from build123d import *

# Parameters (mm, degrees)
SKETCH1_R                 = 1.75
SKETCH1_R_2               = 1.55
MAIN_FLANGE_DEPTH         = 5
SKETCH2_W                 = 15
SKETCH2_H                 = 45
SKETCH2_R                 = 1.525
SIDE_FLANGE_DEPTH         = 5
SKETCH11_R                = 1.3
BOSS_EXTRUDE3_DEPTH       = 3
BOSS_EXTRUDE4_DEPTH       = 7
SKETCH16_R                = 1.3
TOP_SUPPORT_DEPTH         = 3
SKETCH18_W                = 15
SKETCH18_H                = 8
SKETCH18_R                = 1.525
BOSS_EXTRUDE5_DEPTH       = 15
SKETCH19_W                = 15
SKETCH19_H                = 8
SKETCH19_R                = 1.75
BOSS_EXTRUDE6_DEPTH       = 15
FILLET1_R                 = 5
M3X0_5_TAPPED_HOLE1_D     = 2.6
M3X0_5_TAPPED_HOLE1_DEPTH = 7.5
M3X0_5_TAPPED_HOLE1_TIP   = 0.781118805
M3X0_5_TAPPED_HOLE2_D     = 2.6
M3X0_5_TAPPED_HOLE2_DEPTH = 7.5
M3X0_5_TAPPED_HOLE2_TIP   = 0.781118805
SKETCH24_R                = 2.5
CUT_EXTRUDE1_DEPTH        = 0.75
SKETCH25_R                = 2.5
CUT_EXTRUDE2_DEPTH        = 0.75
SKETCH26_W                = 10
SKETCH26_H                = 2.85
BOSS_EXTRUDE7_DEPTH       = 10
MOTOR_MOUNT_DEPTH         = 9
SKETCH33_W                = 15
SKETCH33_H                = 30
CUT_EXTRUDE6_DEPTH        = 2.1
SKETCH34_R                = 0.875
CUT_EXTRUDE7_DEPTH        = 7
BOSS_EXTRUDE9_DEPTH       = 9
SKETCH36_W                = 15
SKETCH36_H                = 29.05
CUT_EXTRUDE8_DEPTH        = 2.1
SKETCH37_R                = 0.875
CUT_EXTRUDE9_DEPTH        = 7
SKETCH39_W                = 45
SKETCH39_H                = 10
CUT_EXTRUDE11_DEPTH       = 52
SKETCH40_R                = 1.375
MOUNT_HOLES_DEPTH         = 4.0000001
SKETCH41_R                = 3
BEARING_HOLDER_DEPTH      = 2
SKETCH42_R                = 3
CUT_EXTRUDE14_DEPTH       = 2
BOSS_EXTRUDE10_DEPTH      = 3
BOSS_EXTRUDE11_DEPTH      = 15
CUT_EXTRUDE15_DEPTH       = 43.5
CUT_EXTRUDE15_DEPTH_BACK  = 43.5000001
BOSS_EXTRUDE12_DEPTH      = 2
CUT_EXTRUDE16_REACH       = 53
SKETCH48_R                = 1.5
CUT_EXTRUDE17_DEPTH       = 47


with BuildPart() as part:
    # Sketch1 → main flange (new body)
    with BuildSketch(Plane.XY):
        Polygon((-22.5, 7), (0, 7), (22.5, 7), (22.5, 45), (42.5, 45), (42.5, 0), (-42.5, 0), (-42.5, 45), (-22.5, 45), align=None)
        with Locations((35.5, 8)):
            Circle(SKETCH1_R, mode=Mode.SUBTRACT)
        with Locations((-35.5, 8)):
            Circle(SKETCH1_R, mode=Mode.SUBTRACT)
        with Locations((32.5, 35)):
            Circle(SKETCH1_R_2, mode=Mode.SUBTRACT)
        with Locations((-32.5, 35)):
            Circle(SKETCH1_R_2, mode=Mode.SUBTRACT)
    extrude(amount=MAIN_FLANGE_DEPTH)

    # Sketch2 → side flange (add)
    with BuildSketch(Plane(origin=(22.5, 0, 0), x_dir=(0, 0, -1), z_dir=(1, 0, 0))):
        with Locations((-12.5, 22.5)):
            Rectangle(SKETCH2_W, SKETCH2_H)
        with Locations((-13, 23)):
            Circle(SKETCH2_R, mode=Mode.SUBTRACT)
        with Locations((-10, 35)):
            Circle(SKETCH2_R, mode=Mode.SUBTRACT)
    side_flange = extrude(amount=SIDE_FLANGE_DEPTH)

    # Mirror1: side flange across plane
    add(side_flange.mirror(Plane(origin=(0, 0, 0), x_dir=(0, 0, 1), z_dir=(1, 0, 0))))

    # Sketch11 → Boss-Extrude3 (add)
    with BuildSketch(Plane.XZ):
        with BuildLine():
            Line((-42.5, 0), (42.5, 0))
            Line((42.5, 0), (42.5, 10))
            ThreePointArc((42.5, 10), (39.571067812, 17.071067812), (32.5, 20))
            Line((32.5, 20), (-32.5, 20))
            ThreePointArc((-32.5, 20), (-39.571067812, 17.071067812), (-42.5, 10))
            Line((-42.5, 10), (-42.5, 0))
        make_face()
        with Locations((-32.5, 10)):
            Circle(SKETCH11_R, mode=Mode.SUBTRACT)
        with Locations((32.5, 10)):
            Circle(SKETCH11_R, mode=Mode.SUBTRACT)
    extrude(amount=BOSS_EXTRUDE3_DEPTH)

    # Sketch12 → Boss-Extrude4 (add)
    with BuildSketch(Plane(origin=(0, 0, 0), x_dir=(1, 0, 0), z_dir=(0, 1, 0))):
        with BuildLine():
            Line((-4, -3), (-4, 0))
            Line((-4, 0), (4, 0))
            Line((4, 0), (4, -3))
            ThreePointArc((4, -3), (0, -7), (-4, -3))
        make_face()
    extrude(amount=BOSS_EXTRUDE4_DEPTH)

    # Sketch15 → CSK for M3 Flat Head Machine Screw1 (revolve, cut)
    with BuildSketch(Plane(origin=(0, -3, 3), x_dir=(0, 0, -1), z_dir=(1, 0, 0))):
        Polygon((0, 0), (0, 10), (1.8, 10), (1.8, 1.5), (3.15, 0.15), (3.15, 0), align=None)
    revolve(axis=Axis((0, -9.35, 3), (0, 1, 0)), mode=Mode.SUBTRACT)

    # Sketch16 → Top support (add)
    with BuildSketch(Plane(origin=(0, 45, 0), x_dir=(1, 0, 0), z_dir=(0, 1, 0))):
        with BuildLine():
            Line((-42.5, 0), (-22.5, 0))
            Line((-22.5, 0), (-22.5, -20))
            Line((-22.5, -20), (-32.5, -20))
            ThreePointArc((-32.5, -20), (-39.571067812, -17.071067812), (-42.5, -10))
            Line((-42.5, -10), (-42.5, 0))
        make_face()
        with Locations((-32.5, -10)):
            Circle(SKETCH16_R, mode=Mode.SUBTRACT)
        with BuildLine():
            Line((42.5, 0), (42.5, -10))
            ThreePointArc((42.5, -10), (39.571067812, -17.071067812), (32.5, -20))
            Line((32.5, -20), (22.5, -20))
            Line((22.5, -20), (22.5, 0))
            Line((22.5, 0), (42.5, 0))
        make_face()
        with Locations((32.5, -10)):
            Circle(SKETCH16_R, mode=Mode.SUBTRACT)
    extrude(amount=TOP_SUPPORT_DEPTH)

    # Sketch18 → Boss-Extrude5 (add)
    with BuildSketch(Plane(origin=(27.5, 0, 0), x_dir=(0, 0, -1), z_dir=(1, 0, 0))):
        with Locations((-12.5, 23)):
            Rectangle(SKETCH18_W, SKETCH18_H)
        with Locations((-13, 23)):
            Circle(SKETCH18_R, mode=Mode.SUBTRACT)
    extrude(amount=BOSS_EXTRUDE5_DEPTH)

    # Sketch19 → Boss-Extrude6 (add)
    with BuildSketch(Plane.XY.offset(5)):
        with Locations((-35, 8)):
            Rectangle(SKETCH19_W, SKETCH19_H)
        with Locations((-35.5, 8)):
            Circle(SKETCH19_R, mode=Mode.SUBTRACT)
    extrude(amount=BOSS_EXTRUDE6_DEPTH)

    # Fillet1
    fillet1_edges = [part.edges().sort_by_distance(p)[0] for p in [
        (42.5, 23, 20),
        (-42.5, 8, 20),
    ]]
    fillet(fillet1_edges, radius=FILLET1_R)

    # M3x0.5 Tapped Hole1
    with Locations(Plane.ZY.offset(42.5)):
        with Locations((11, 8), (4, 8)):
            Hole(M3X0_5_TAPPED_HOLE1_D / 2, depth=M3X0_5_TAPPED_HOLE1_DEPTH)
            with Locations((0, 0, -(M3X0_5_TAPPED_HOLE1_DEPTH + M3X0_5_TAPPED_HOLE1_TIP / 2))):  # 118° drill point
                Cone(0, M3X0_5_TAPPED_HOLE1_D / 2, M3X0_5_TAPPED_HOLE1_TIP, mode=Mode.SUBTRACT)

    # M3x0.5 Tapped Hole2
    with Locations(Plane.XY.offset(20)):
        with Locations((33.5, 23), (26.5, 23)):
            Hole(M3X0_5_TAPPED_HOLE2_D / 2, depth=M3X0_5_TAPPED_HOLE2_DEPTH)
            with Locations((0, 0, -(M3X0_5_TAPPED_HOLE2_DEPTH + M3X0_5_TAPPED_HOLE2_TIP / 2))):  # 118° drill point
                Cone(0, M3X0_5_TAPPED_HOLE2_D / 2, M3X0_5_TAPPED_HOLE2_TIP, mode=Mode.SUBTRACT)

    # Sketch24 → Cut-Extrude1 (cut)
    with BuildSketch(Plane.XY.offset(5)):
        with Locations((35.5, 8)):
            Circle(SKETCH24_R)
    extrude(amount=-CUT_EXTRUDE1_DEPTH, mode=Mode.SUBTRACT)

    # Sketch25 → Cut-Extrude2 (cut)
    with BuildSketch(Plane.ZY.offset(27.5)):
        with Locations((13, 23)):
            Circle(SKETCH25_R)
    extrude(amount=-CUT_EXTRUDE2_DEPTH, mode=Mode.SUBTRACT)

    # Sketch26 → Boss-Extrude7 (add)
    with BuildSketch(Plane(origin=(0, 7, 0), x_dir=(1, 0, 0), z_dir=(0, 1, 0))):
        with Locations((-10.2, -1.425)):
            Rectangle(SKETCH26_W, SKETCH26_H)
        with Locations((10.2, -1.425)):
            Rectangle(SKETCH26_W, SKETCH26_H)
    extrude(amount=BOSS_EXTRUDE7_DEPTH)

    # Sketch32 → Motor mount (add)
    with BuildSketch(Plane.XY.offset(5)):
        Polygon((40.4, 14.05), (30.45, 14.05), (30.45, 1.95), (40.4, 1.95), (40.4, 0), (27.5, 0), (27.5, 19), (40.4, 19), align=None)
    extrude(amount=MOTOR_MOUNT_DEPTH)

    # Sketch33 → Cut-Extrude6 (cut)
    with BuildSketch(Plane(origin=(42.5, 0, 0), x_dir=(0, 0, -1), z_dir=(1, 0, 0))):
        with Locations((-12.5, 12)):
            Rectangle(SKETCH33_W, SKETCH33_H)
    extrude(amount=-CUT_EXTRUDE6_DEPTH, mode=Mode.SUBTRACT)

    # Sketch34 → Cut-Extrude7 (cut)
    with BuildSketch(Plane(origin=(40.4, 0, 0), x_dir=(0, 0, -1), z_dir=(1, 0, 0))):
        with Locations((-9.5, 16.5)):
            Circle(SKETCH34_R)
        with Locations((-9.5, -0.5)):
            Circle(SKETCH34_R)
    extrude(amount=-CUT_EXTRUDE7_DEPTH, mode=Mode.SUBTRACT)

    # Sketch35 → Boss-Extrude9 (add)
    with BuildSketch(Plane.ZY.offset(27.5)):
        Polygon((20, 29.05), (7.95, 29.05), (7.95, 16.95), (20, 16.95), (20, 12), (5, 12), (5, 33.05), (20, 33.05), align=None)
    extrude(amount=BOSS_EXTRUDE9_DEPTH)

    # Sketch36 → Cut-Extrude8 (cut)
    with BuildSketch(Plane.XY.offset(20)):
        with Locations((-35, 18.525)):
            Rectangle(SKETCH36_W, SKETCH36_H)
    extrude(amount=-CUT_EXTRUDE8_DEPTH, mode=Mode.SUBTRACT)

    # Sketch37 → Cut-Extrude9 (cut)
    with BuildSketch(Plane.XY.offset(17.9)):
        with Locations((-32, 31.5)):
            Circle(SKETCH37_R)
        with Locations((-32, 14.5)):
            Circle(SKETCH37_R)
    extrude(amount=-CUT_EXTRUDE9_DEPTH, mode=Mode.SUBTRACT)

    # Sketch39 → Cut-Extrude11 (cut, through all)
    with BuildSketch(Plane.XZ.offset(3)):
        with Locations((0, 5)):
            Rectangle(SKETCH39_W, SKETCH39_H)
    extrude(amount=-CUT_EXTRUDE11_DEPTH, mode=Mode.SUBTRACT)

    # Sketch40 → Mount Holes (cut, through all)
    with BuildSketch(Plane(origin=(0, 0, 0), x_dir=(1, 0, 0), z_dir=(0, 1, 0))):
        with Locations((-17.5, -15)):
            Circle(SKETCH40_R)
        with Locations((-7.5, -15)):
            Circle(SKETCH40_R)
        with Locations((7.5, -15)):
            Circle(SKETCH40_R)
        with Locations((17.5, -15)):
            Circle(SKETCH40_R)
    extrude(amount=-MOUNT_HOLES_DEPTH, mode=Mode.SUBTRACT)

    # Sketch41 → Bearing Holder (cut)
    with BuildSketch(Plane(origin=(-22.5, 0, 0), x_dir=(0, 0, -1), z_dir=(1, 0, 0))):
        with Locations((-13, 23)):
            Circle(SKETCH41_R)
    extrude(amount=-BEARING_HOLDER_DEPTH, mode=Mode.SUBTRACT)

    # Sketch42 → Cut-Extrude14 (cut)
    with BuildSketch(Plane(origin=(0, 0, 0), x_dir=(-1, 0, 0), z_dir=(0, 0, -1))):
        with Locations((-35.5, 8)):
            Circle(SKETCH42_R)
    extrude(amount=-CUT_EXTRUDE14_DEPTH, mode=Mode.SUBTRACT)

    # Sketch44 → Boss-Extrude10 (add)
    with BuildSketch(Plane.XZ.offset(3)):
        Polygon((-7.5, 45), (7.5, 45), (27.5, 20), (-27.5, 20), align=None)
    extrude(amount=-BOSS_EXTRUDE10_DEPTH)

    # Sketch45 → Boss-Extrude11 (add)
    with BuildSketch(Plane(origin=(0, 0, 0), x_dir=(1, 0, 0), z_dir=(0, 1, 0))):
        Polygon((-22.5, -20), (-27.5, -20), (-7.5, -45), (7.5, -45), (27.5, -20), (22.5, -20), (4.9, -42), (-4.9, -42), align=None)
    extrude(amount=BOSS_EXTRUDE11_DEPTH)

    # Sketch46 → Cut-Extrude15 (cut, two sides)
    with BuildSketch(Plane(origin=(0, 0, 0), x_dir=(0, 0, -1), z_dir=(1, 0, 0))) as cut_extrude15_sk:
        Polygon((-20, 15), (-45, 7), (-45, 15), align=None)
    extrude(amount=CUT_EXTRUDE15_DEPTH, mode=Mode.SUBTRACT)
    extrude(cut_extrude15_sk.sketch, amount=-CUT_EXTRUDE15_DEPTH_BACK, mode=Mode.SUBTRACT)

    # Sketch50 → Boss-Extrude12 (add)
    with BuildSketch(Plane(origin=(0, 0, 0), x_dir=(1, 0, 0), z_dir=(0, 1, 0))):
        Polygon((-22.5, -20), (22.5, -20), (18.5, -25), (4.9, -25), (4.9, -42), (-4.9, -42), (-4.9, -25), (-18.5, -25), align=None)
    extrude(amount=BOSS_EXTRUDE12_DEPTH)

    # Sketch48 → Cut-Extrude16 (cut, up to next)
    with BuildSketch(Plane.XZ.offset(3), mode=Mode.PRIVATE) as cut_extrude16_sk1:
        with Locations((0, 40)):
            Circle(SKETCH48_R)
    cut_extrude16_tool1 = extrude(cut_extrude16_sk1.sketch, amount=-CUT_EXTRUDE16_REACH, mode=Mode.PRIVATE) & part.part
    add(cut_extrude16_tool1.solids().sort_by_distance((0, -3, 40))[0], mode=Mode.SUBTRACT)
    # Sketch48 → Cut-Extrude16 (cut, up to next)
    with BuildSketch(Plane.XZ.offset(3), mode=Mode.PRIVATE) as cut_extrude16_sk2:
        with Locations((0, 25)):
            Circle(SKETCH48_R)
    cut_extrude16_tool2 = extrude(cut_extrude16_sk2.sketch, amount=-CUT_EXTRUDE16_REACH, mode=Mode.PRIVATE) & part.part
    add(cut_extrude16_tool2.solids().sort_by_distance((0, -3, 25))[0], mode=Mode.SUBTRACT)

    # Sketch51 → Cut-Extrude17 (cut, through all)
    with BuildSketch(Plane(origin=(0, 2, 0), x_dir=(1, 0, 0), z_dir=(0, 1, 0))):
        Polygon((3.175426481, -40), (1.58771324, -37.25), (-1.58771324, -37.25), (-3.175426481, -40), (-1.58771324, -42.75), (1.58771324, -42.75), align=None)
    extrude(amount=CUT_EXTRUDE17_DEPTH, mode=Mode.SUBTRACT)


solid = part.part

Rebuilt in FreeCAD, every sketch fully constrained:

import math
import FreeCAD as App
import Part
import Sketcher

V = App.Vector
Q = App.Units.Quantity


def edges_at(feature, points):
    """Names of the edges that pass closest to the given points."""
    edges = feature.Shape.Edges
    near = lambda p: min(range(len(edges)), key=lambda i: edges[i].distToShape(Part.Vertex(*p))[0])
    return sorted({f"Edge{near(p) + 1}" for p in points})


def add_polygon(sketch, points):
    """Adds a closed chain of lines whose ends are joined by coincident constraints."""
    first, n = sketch.GeometryCount, len(points)
    for a, b in zip(points, points[1:] + points[:1]):
        sketch.addGeometry(Part.LineSegment(App.Vector(*a, 0), App.Vector(*b, 0)), False)
    for i in range(n):
        sketch.addConstraint(Sketcher.Constraint("Coincident", first + i, 2, first + (i + 1) % n, 1))

doc = App.newDocument("Part")
body = doc.addObject("PartDesign::Body", "Body")

sketch1 = body.newObject("Sketcher::SketchObject", "Sketch")
sketch1.AttachmentSupport = (doc.getObject("XY_Plane"), [""])
sketch1.MapMode = "FlatFace"
add_polygon(sketch1, [(22.5, 7), (-22.5, 7), (-22.5, 45), (-42.5, 45), (-42.5, 0), (42.5, 0), (42.5, 45), (22.5, 45)])
sketch1.addGeometry(Part.Circle(V(35.5, 8, 0), V(0, 0, 1), 1.75), False)
sketch1.addGeometry(Part.Circle(V(-35.5, 8, 0), V(0, 0, 1), 1.75), False)
sketch1.addGeometry(Part.Circle(V(32.5, 35, 0), V(0, 0, 1), 1.55), False)
sketch1.addGeometry(Part.Circle(V(-32.5, 35, 0), V(0, 0, 1), 1.55), False)
sketch1.addConstraint(Sketcher.Constraint("Horizontal", 0))
sketch1.addConstraint(Sketcher.Constraint("Vertical", 1))
sketch1.addConstraint(Sketcher.Constraint("Horizontal", 2))
sketch1.addConstraint(Sketcher.Constraint("Vertical", 3))
sketch1.addConstraint(Sketcher.Constraint("Horizontal", 4))
sketch1.addConstraint(Sketcher.Constraint("Vertical", 5))
sketch1.addConstraint(Sketcher.Constraint("Horizontal", 6))
sketch1.addConstraint(Sketcher.Constraint("Vertical", 7))
sketch1.addConstraint(Sketcher.Constraint("Equal", 8, 9))
sketch1.addConstraint(Sketcher.Constraint("Equal", 10, 11))
sketch1.addConstraint(Sketcher.Constraint("Symmetric", 3, 2, 4, 2, -1, 1))
sketch1.addConstraint(Sketcher.Constraint("Symmetric", 8, 3, 9, 3, -2))
sketch1.addConstraint(Sketcher.Constraint("Symmetric", 10, 3, 11, 3, -2))
sketch1.addConstraint(Sketcher.Constraint("Symmetric", 1, 2, 6, 2, -2))
sketch1.addConstraint(Sketcher.Constraint("Equal", 0, 3))
sketch1.addConstraint(Sketcher.Constraint("Diameter", 8, Q("3.5 mm")))
sketch1.addConstraint(Sketcher.Constraint("Diameter", 10, Q("3.1 mm")))
sketch1.addConstraint(Sketcher.Constraint("DistanceX", 0, 2, 0, 1, Q("45 mm")))
sketch1.addConstraint(Sketcher.Constraint("DistanceX", 2, 2, 2, 1, Q("20 mm")))
sketch1.addConstraint(Sketcher.Constraint("DistanceY", 1, 1, 1, 2, Q("38 mm")))
sketch1.addConstraint(Sketcher.Constraint("DistanceY", -1, 1, 8, 3, Q("8 mm")))
sketch1.addConstraint(Sketcher.Constraint("DistanceY", -1, 1, 10, 3, Q("35 mm")))
sketch1.addConstraint(Sketcher.Constraint("DistanceX", 9, 3, 8, 3, Q("71 mm")))
sketch1.addConstraint(Sketcher.Constraint("DistanceX", 10, 3, 8, 3, Q("3 mm")))
pad1 = body.newObject("PartDesign::Pad", "Pad")
pad1.Profile = sketch1
pad1.Length = 5

sketch2 = body.newObject("Sketcher::SketchObject", "Sketch001")
sketch2.AttachmentSupport = (doc.getObject("YZ_Plane"), [""])
sketch2.MapMode = "FlatFace"
sketch2.AttachmentOffset = App.Placement(V(0, 0, 22.5), App.Rotation())
add_polygon(sketch2, [(45, 20), (0, 20), (0, 5), (45, 5)])
sketch2.addGeometry(Part.Circle(V(23, 13, 0), V(0, 0, 1), 1.525), False)
sketch2.addGeometry(Part.Circle(V(35, 10, 0), V(0, 0, 1), 1.525), False)
sketch2.addConstraint(Sketcher.Constraint("Horizontal", 0))
sketch2.addConstraint(Sketcher.Constraint("Vertical", 1))
sketch2.addConstraint(Sketcher.Constraint("Horizontal", 2))
sketch2.addConstraint(Sketcher.Constraint("Vertical", 3))
sketch2.addConstraint(Sketcher.Constraint("Equal", 4, 5))
sketch2.addConstraint(Sketcher.Constraint("PointOnObject", 0, 2, -2))
sketch2.addConstraint(Sketcher.Constraint("Diameter", 4, Q("3.05 mm")))
sketch2.addConstraint(Sketcher.Constraint("DistanceX", 0, 2, 0, 1, Q("45 mm")))
sketch2.addConstraint(Sketcher.Constraint("DistanceY", 1, 2, 1, 1, Q("15 mm")))
sketch2.addConstraint(Sketcher.Constraint("DistanceX", -1, 1, 4, 3, Q("23 mm")))
sketch2.addConstraint(Sketcher.Constraint("DistanceY", -1, 1, 4, 3, Q("13 mm")))
sketch2.addConstraint(Sketcher.Constraint("DistanceX", -1, 1, 5, 3, Q("35 mm")))
sketch2.addConstraint(Sketcher.Constraint("DistanceY", -1, 1, 5, 3, Q("10 mm")))
sketch2.addConstraint(Sketcher.Constraint("DistanceY", -1, 1, 0, 2, Q("20 mm")))
pad2 = body.newObject("PartDesign::Pad", "Pad001")
pad2.Profile = sketch2
pad2.Length = 5
doc.recompute()

mirrored = body.newObject("PartDesign::Mirrored", "Mirrored")
mirrored.Originals = [pad2]
mirrored.MirrorPlane = (doc.getObject("YZ_Plane"), [""])
body.Tip = mirrored

sketch3 = body.newObject("Sketcher::SketchObject", "Sketch002")
sketch3.AttachmentSupport = (doc.getObject("XZ_Plane"), [""])
sketch3.MapMode = "FlatFace"
sketch3.addGeometry(Part.LineSegment(V(-42.5, 0, 0), V(42.5, 0, 0)), False)
sketch3.addGeometry(Part.LineSegment(V(42.5, 0, 0), V(42.5, 10, 0)), False)
sketch3.addGeometry(Part.ArcOfCircle(Part.Circle(V(32.5, 10, 0), V(0, 0, 1), 10), math.radians(0), math.radians(90)), False)
sketch3.addGeometry(Part.LineSegment(V(32.5, 20, 0), V(-32.5, 20, 0)), False)
sketch3.addGeometry(Part.ArcOfCircle(Part.Circle(V(-32.5, 10, 0), V(0, 0, 1), 10), math.radians(90), math.radians(180)), False)
sketch3.addGeometry(Part.LineSegment(V(-42.5, 10, 0), V(-42.5, 0, 0)), False)
sketch3.addGeometry(Part.Circle(V(-32.5, 10, 0), V(0, 0, 1), 1.3), False)
sketch3.addGeometry(Part.Circle(V(32.5, 10, 0), V(0, 0, 1), 1.3), False)
sketch3.addConstraint(Sketcher.Constraint("Coincident", 0, 2, 1, 1))
sketch3.addConstraint(Sketcher.Constraint("Tangent", 1, 2, 2, 1))
sketch3.addConstraint(Sketcher.Constraint("Tangent", 2, 2, 3, 1))
sketch3.addConstraint(Sketcher.Constraint("Tangent", 3, 2, 4, 1))
sketch3.addConstraint(Sketcher.Constraint("Tangent", 4, 2, 5, 1))
sketch3.addConstraint(Sketcher.Constraint("Coincident", 5, 2, 0, 1))
sketch3.addConstraint(Sketcher.Constraint("Horizontal", 0))
sketch3.addConstraint(Sketcher.Constraint("Vertical", 1))
sketch3.addConstraint(Sketcher.Constraint("Horizontal", 3))
sketch3.addConstraint(Sketcher.Constraint("Vertical", 5))
sketch3.addConstraint(Sketcher.Constraint("Coincident", 6, 3, 4, 3))
sketch3.addConstraint(Sketcher.Constraint("Coincident", 7, 3, 2, 3))
sketch3.addConstraint(Sketcher.Constraint("Equal", 2, 4))
sketch3.addConstraint(Sketcher.Constraint("Equal", 6, 7))
sketch3.addConstraint(Sketcher.Constraint("Symmetric", 0, 2, 5, 2, -1, 1))
sketch3.addConstraint(Sketcher.Constraint("Radius", 2, Q("10 mm")))
sketch3.addConstraint(Sketcher.Constraint("Diameter", 6, Q("2.6 mm")))
sketch3.addConstraint(Sketcher.Constraint("DistanceX", 0, 1, 0, 2, Q("85 mm")))
sketch3.addConstraint(Sketcher.Constraint("DistanceY", 1, 1, 1, 2, Q("10 mm")))
pad3 = body.newObject("PartDesign::Pad", "Pad002")
pad3.Profile = sketch3
pad3.Length = 3

sketch4 = body.newObject("Sketcher::SketchObject", "Sketch003")
sketch4.AttachmentSupport = (doc.getObject("XZ_Plane"), [""])
sketch4.MapMode = "FlatFace"
sketch4.addGeometry(Part.LineSegment(V(-4, 0, 0), V(-4, 3, 0)), False)
sketch4.addGeometry(Part.ArcOfCircle(Part.Circle(V(0, 3, 0), V(0, 0, 1), 4), math.radians(0), math.radians(180)), False)
sketch4.addGeometry(Part.LineSegment(V(4, 3, 0), V(4, 0, 0)), False)
sketch4.addGeometry(Part.LineSegment(V(4, 0, 0), V(-4, 0, 0)), False)
sketch4.addConstraint(Sketcher.Constraint("Tangent", 0, 2, 1, 2))
sketch4.addConstraint(Sketcher.Constraint("Tangent", 1, 1, 2, 1))
sketch4.addConstraint(Sketcher.Constraint("Coincident", 2, 2, 3, 1))
sketch4.addConstraint(Sketcher.Constraint("Coincident", 3, 2, 0, 1))
sketch4.addConstraint(Sketcher.Constraint("Vertical", 0))
sketch4.addConstraint(Sketcher.Constraint("Vertical", 2))
sketch4.addConstraint(Sketcher.Constraint("Horizontal", 3))
sketch4.addConstraint(Sketcher.Constraint("Symmetric", 2, 2, 3, 2, -1, 1))
sketch4.addConstraint(Sketcher.Constraint("Radius", 1, Q("4 mm")))
sketch4.addConstraint(Sketcher.Constraint("DistanceY", 0, 1, 0, 2, Q("3 mm")))
pad4 = body.newObject("PartDesign::Pad", "Pad003")
pad4.Profile = sketch4
pad4.Length = 7
pad4.Reversed = True

sketch5 = body.newObject("Sketcher::SketchObject", "Sketch004")
sketch5.AttachmentSupport = (doc.getObject("YZ_Plane"), [""])
sketch5.MapMode = "FlatFace"
add_polygon(sketch5, [(7, 3), (-3, 3), (-3, -0.15), (-2.85, -0.15), (-1.5, 1.2), (7, 1.2)])
sketch5.addGeometry(Part.LineSegment(V(-3, 3, 0), V(7, 3, 0)), True)
sketch5.addConstraint(Sketcher.Constraint("Horizontal", 0))
sketch5.addConstraint(Sketcher.Constraint("Vertical", 1))
sketch5.addConstraint(Sketcher.Constraint("Horizontal", 2))
sketch5.addConstraint(Sketcher.Constraint("Horizontal", 4))
sketch5.addConstraint(Sketcher.Constraint("Vertical", 5))
sketch5.addConstraint(Sketcher.Constraint("Horizontal", 6))
sketch5.addConstraint(Sketcher.Constraint("Coincident", 6, 1, 0, 2))
sketch5.addConstraint(Sketcher.Constraint("Vertical", 4, 2, 6, 2))
sketch5.addConstraint(Sketcher.Constraint("DistanceX", 0, 2, 0, 1, Q("10 mm")))
sketch5.addConstraint(Sketcher.Constraint("Angle", 3, Q("45 deg")))
sketch5.addConstraint(Sketcher.Constraint("DistanceX", 4, 1, 4, 2, Q("8.5 mm")))
sketch5.addConstraint(Sketcher.Constraint("DistanceY", 5, 1, 5, 2, Q("1.8 mm")))
sketch5.addConstraint(Sketcher.Constraint("DistanceX", 0, 2, -1, 1, Q("3 mm")))
sketch5.addConstraint(Sketcher.Constraint("DistanceY", -1, 1, 0, 2, Q("3 mm")))
sketch5.addConstraint(Sketcher.Constraint("DistanceX", 2, 1, 2, 2, Q("0.15 mm")))
groove = body.newObject("PartDesign::Groove", "Groove")
groove.Profile = sketch5
groove.ReferenceAxis = (sketch5, ["Axis0"])
groove.Angle = 360

sketch6 = body.newObject("Sketcher::SketchObject", "Sketch005")
sketch6.AttachmentSupport = (doc.getObject("XZ_Plane"), [""])
sketch6.MapMode = "FlatFace"
sketch6.AttachmentOffset = App.Placement(V(0, 0, -45), App.Rotation())
sketch6.addGeometry(Part.LineSegment(V(-22.5, 0, 0), V(-42.5, 0, 0)), False)
sketch6.addGeometry(Part.LineSegment(V(-42.5, 0, 0), V(-42.5, 10, 0)), False)
sketch6.addGeometry(Part.ArcOfCircle(Part.Circle(V(-32.5, 10, 0), V(0, 0, 1), 10), math.radians(90), math.radians(180)), False)
sketch6.addGeometry(Part.LineSegment(V(-32.5, 20, 0), V(-22.5, 20, 0)), False)
sketch6.addGeometry(Part.LineSegment(V(-22.5, 20, 0), V(-22.5, 0, 0)), False)
sketch6.addGeometry(Part.Circle(V(-32.5, 10, 0), V(0, 0, 1), 1.3), False)
sketch6.addGeometry(Part.LineSegment(V(42.5, 10, 0), V(42.5, 0, 0)), False)
sketch6.addGeometry(Part.LineSegment(V(42.5, 0, 0), V(22.5, 0, 0)), False)
sketch6.addGeometry(Part.LineSegment(V(22.5, 0, 0), V(22.5, 20, 0)), False)
sketch6.addGeometry(Part.LineSegment(V(22.5, 20, 0), V(32.5, 20, 0)), False)
sketch6.addGeometry(Part.ArcOfCircle(Part.Circle(V(32.5, 10, 0), V(0, 0, 1), 10), math.radians(0), math.radians(90)), False)
sketch6.addGeometry(Part.Circle(V(32.5, 10, 0), V(0, 0, 1), 1.3), False)
sketch6.addConstraint(Sketcher.Constraint("Coincident", 0, 2, 1, 1))
sketch6.addConstraint(Sketcher.Constraint("Tangent", 1, 2, 2, 2))
sketch6.addConstraint(Sketcher.Constraint("Tangent", 2, 1, 3, 1))
sketch6.addConstraint(Sketcher.Constraint("Coincident", 3, 2, 4, 1))
sketch6.addConstraint(Sketcher.Constraint("Coincident", 4, 2, 0, 1))
sketch6.addConstraint(Sketcher.Constraint("Coincident", 6, 2, 7, 1))
sketch6.addConstraint(Sketcher.Constraint("Coincident", 7, 2, 8, 1))
sketch6.addConstraint(Sketcher.Constraint("Coincident", 8, 2, 9, 1))
sketch6.addConstraint(Sketcher.Constraint("Tangent", 9, 2, 10, 2))
sketch6.addConstraint(Sketcher.Constraint("Tangent", 10, 1, 6, 1))
sketch6.addConstraint(Sketcher.Constraint("Horizontal", 0))
sketch6.addConstraint(Sketcher.Constraint("Vertical", 1))
sketch6.addConstraint(Sketcher.Constraint("Horizontal", 3))
sketch6.addConstraint(Sketcher.Constraint("Vertical", 4))
sketch6.addConstraint(Sketcher.Constraint("Vertical", 6))
sketch6.addConstraint(Sketcher.Constraint("Horizontal", 7))
sketch6.addConstraint(Sketcher.Constraint("Vertical", 8))
sketch6.addConstraint(Sketcher.Constraint("Horizontal", 9))
sketch6.addConstraint(Sketcher.Constraint("Coincident", 5, 3, 2, 3))
sketch6.addConstraint(Sketcher.Constraint("Coincident", 11, 3, 10, 3))
sketch6.addConstraint(Sketcher.Constraint("Equal", 2, 10))
sketch6.addConstraint(Sketcher.Constraint("Equal", 5, 11))
sketch6.addConstraint(Sketcher.Constraint("Symmetric", 0, 2, 6, 2, -1, 1))
sketch6.addConstraint(Sketcher.Constraint("Symmetric", 4, 2, 7, 2, -2))
sketch6.addConstraint(Sketcher.Constraint("Horizontal", 5, 3, 10, 3))
sketch6.addConstraint(Sketcher.Constraint("Equal", 9, 1))
sketch6.addConstraint(Sketcher.Constraint("Radius", 2, Q("10 mm")))
sketch6.addConstraint(Sketcher.Constraint("Diameter", 5, Q("2.6 mm")))
sketch6.addConstraint(Sketcher.Constraint("DistanceX", 0, 2, 0, 1, Q("20 mm")))
sketch6.addConstraint(Sketcher.Constraint("DistanceX", 2, 3, 10, 3, Q("65 mm")))
pad5 = body.newObject("PartDesign::Pad", "Pad004")
pad5.Profile = sketch6
pad5.Length = 3
pad5.Reversed = True

sketch7 = body.newObject("Sketcher::SketchObject", "Sketch006")
sketch7.AttachmentSupport = (doc.getObject("YZ_Plane"), [""])
sketch7.MapMode = "FlatFace"
sketch7.AttachmentOffset = App.Placement(V(0, 0, 27.5), App.Rotation())
add_polygon(sketch7, [(27, 20), (19, 20), (19, 5), (27, 5)])
sketch7.addGeometry(Part.Circle(V(23, 13, 0), V(0, 0, 1), 1.525), False)
sketch7.addConstraint(Sketcher.Constraint("Horizontal", 0))
sketch7.addConstraint(Sketcher.Constraint("Vertical", 1))
sketch7.addConstraint(Sketcher.Constraint("Horizontal", 2))
sketch7.addConstraint(Sketcher.Constraint("Vertical", 3))
sketch7.addConstraint(Sketcher.Constraint("Diameter", 4, Q("3.05 mm")))
sketch7.addConstraint(Sketcher.Constraint("DistanceX", 0, 2, 0, 1, Q("8 mm")))
sketch7.addConstraint(Sketcher.Constraint("DistanceY", 1, 2, 1, 1, Q("15 mm")))
sketch7.addConstraint(Sketcher.Constraint("DistanceX", -1, 1, 4, 3, Q("23 mm")))
sketch7.addConstraint(Sketcher.Constraint("DistanceY", -1, 1, 4, 3, Q("13 mm")))
sketch7.addConstraint(Sketcher.Constraint("DistanceX", -1, 1, 0, 2, Q("19 mm")))
sketch7.addConstraint(Sketcher.Constraint("DistanceY", -1, 1, 0, 2, Q("20 mm")))
pad6 = body.newObject("PartDesign::Pad", "Pad005")
pad6.Profile = sketch7
pad6.Length = 15

sketch8 = body.newObject("Sketcher::SketchObject", "Sketch007")
sketch8.AttachmentSupport = (doc.getObject("XY_Plane"), [""])
sketch8.MapMode = "FlatFace"
sketch8.AttachmentOffset = App.Placement(V(0, 0, 5), App.Rotation())
add_polygon(sketch8, [(-42.5, 12), (-42.5, 4), (-27.5, 4), (-27.5, 12)])
sketch8.addGeometry(Part.Circle(V(-35.5, 8, 0), V(0, 0, 1), 1.75), False)
sketch8.addConstraint(Sketcher.Constraint("Vertical", 0))
sketch8.addConstraint(Sketcher.Constraint("Horizontal", 1))
sketch8.addConstraint(Sketcher.Constraint("Vertical", 2))
sketch8.addConstraint(Sketcher.Constraint("Horizontal", 3))
sketch8.addConstraint(Sketcher.Constraint("Diameter", 4, Q("3.5 mm")))
sketch8.addConstraint(Sketcher.Constraint("DistanceX", 1, 1, 1, 2, Q("15 mm")))
sketch8.addConstraint(Sketcher.Constraint("DistanceY", 0, 2, 0, 1, Q("8 mm")))
sketch8.addConstraint(Sketcher.Constraint("DistanceY", -1, 1, 4, 3, Q("8 mm")))
sketch8.addConstraint(Sketcher.Constraint("DistanceY", -1, 1, 0, 2, Q("4 mm")))
sketch8.addConstraint(Sketcher.Constraint("DistanceX", 0, 2, 4, 3, Q("7 mm")))
sketch8.addConstraint(Sketcher.Constraint("DistanceX", 4, 3, -1, 1, Q("35.5 mm")))
pad7 = body.newObject("PartDesign::Pad", "Pad006")
pad7.Profile = sketch8
pad7.Length = 15
doc.recompute()

fillet = body.newObject("PartDesign::Fillet", "Fillet")
fillet.Base = (pad7, edges_at(pad7, [(42.5, 23, 20), (-42.5, 8, 20)]))
fillet.Radius = 5

sketch9 = body.newObject("Sketcher::SketchObject", "Sketch008")
sketch9.AttachmentSupport = (doc.getObject("YZ_Plane"), [""])
sketch9.MapMode = "FlatFace"
sketch9.AttachmentOffset = App.Placement(V(0, 0, -42.5), App.Rotation())
sketch9.addGeometry(Part.Circle(V(8, 11, 0), V(0, 0, 1), 1.3), False)
sketch9.addGeometry(Part.Circle(V(8, 4, 0), V(0, 0, 1), 1.3), False)
sketch9.addConstraint(Sketcher.Constraint("Equal", 0, 1))
sketch9.addConstraint(Sketcher.Constraint("Vertical", 0, 3, 1, 3))
sketch9.addConstraint(Sketcher.Constraint("Diameter", 0, Q("2.6 mm")))
sketch9.addConstraint(Sketcher.Constraint("DistanceX", -1, 1, 0, 3, Q("8 mm")))
sketch9.addConstraint(Sketcher.Constraint("DistanceY", -1, 1, 0, 3, Q("11 mm")))
sketch9.addConstraint(Sketcher.Constraint("DistanceY", -1, 1, 1, 3, Q("4 mm")))
doc.recompute()
hole = body.newObject("PartDesign::Hole", "Hole")
hole.Profile = sketch9
hole.ThreadType = "None"
hole.Diameter = 2.6
hole.DepthType = "Dimension"
hole.Depth = 7.5
hole.DrillPoint = "Angled"
hole.DrillPointAngle = 118
hole.Reversed = True

sketch10 = body.newObject("Sketcher::SketchObject", "Sketch009")
sketch10.AttachmentSupport = (doc.getObject("XY_Plane"), [""])
sketch10.MapMode = "FlatFace"
sketch10.AttachmentOffset = App.Placement(V(0, 0, 20), App.Rotation())
sketch10.addGeometry(Part.Circle(V(33.5, 23, 0), V(0, 0, 1), 1.3), False)
sketch10.addGeometry(Part.Circle(V(26.5, 23, 0), V(0, 0, 1), 1.3), False)
sketch10.addConstraint(Sketcher.Constraint("Equal", 0, 1))
sketch10.addConstraint(Sketcher.Constraint("Horizontal", 0, 3, 1, 3))
sketch10.addConstraint(Sketcher.Constraint("Diameter", 0, Q("2.6 mm")))
sketch10.addConstraint(Sketcher.Constraint("DistanceY", -1, 1, 0, 3, Q("23 mm")))
sketch10.addConstraint(Sketcher.Constraint("DistanceX", 1, 3, 0, 3, Q("7 mm")))
sketch10.addConstraint(Sketcher.Constraint("DistanceX", -1, 1, 0, 3, Q("33.5 mm")))
doc.recompute()
hole2 = body.newObject("PartDesign::Hole", "Hole001")
hole2.Profile = sketch10
hole2.ThreadType = "None"
hole2.Diameter = 2.6
hole2.DepthType = "Dimension"
hole2.Depth = 7.5
hole2.DrillPoint = "Angled"
hole2.DrillPointAngle = 118

sketch11 = body.newObject("Sketcher::SketchObject", "Sketch010")
sketch11.AttachmentSupport = (doc.getObject("XY_Plane"), [""])
sketch11.MapMode = "FlatFace"
sketch11.AttachmentOffset = App.Placement(V(0, 0, 5), App.Rotation())
sketch11.addGeometry(Part.Circle(V(35.5, 8, 0), V(0, 0, 1), 2.5), False)
sketch11.addConstraint(Sketcher.Constraint("Diameter", 0, Q("5 mm")))
sketch11.addConstraint(Sketcher.Constraint("DistanceY", -1, 1, 0, 3, Q("8 mm")))
sketch11.addConstraint(Sketcher.Constraint("DistanceX", -1, 1, 0, 3, Q("35.5 mm")))
pocket1 = body.newObject("PartDesign::Pocket", "Pocket")
pocket1.Profile = sketch11
pocket1.Length = 0.75

sketch12 = body.newObject("Sketcher::SketchObject", "Sketch011")
sketch12.AttachmentSupport = (doc.getObject("YZ_Plane"), [""])
sketch12.MapMode = "FlatFace"
sketch12.AttachmentOffset = App.Placement(V(0, 0, -27.5), App.Rotation())
sketch12.addGeometry(Part.Circle(V(23, 13, 0), V(0, 0, 1), 2.5), False)
sketch12.addConstraint(Sketcher.Constraint("Diameter", 0, Q("5 mm")))
sketch12.addConstraint(Sketcher.Constraint("DistanceX", -1, 1, 0, 3, Q("23 mm")))
sketch12.addConstraint(Sketcher.Constraint("DistanceY", -1, 1, 0, 3, Q("13 mm")))
pocket2 = body.newObject("PartDesign::Pocket", "Pocket001")
pocket2.Profile = sketch12
pocket2.Length = 0.75
pocket2.Reversed = True

sketch13 = body.newObject("Sketcher::SketchObject", "Sketch012")
sketch13.AttachmentSupport = (doc.getObject("XZ_Plane"), [""])
sketch13.MapMode = "FlatFace"
sketch13.AttachmentOffset = App.Placement(V(0, 0, -7), App.Rotation())
add_polygon(sketch13, [(-15.2, 0), (-15.2, 2.85), (-5.2, 2.85), (-5.2, 0)])
add_polygon(sketch13, [(5.2, 0), (5.2, 2.85), (15.2, 2.85), (15.2, 0)])
sketch13.addConstraint(Sketcher.Constraint("Vertical", 0))
sketch13.addConstraint(Sketcher.Constraint("Horizontal", 1))
sketch13.addConstraint(Sketcher.Constraint("Vertical", 2))
sketch13.addConstraint(Sketcher.Constraint("Horizontal", 3))
sketch13.addConstraint(Sketcher.Constraint("Vertical", 4))
sketch13.addConstraint(Sketcher.Constraint("Horizontal", 5))
sketch13.addConstraint(Sketcher.Constraint("Vertical", 6))
sketch13.addConstraint(Sketcher.Constraint("Horizontal", 7))
sketch13.addConstraint(Sketcher.Constraint("Symmetric", 3, 2, 6, 2, -1, 1))
sketch13.addConstraint(Sketcher.Constraint("Symmetric", 1, 2, 4, 2, -2))
sketch13.addConstraint(Sketcher.Constraint("PointOnObject", 2, 2, -1))
sketch13.addConstraint(Sketcher.Constraint("DistanceX", 1, 1, 1, 2, Q("10 mm")))
sketch13.addConstraint(Sketcher.Constraint("DistanceY", 0, 1, 0, 2, Q("2.85 mm")))
sketch13.addConstraint(Sketcher.Constraint("DistanceX", 0, 2, -1, 1, Q("15.2 mm")))
pad8 = body.newObject("PartDesign::Pad", "Pad007")
pad8.Profile = sketch13
pad8.Length = 10
pad8.Reversed = True

sketch14 = body.newObject("Sketcher::SketchObject", "Sketch013")
sketch14.AttachmentSupport = (doc.getObject("XY_Plane"), [""])
sketch14.MapMode = "FlatFace"
sketch14.AttachmentOffset = App.Placement(V(0, 0, 5), App.Rotation())
add_polygon(sketch14, [(30.45, 14.05), (40.4, 14.05), (40.4, 19), (27.5, 19), (27.5, 0), (40.4, 0), (40.4, 1.95), (30.45, 1.95)])
sketch14.addConstraint(Sketcher.Constraint("Horizontal", 0))
sketch14.addConstraint(Sketcher.Constraint("Vertical", 1))
sketch14.addConstraint(Sketcher.Constraint("Horizontal", 2))
sketch14.addConstraint(Sketcher.Constraint("Vertical", 3))
sketch14.addConstraint(Sketcher.Constraint("Horizontal", 4))
sketch14.addConstraint(Sketcher.Constraint("Vertical", 5))
sketch14.addConstraint(Sketcher.Constraint("Horizontal", 6))
sketch14.addConstraint(Sketcher.Constraint("Vertical", 7))
sketch14.addConstraint(Sketcher.Constraint("PointOnObject", 3, 2, -1))
sketch14.addConstraint(Sketcher.Constraint("Vertical", 1, 2, 4, 2))
sketch14.addConstraint(Sketcher.Constraint("DistanceY", 3, 2, 3, 1, Q("19 mm")))
sketch14.addConstraint(Sketcher.Constraint("DistanceX", 2, 2, 2, 1, Q("12.9 mm")))
sketch14.addConstraint(Sketcher.Constraint("DistanceY", 7, 1, 7, 2, Q("12.1 mm")))
sketch14.addConstraint(Sketcher.Constraint("DistanceX", 0, 1, 0, 2, Q("9.95 mm")))
sketch14.addConstraint(Sketcher.Constraint("DistanceY", 1, 1, 1, 2, Q("4.95 mm")))
sketch14.addConstraint(Sketcher.Constraint("DistanceX", -1, 1, 0, 2, Q("40.4 mm")))
pad9 = body.newObject("PartDesign::Pad", "Pad008")
pad9.Profile = sketch14
pad9.Length = 9

sketch15 = body.newObject("Sketcher::SketchObject", "Sketch014")
sketch15.AttachmentSupport = (doc.getObject("YZ_Plane"), [""])
sketch15.MapMode = "FlatFace"
sketch15.AttachmentOffset = App.Placement(V(0, 0, 42.5), App.Rotation())
add_polygon(sketch15, [(27, 20), (-3, 20), (-3, 5), (27, 5)])
sketch15.addConstraint(Sketcher.Constraint("Horizontal", 0))
sketch15.addConstraint(Sketcher.Constraint("Vertical", 1))
sketch15.addConstraint(Sketcher.Constraint("Horizontal", 2))
sketch15.addConstraint(Sketcher.Constraint("Vertical", 3))
sketch15.addConstraint(Sketcher.Constraint("DistanceX", 0, 2, 0, 1, Q("30 mm")))
sketch15.addConstraint(Sketcher.Constraint("DistanceY", 1, 2, 1, 1, Q("15 mm")))
sketch15.addConstraint(Sketcher.Constraint("DistanceX", 0, 2, -1, 1, Q("3 mm")))
sketch15.addConstraint(Sketcher.Constraint("DistanceY", -1, 1, 0, 2, Q("20 mm")))
pocket3 = body.newObject("PartDesign::Pocket", "Pocket002")
pocket3.Profile = sketch15
pocket3.Length = 2.1

sketch16 = body.newObject("Sketcher::SketchObject", "Sketch015")
sketch16.AttachmentSupport = (doc.getObject("YZ_Plane"), [""])
sketch16.MapMode = "FlatFace"
sketch16.AttachmentOffset = App.Placement(V(0, 0, 40.4), App.Rotation())
sketch16.addGeometry(Part.Circle(V(16.5, 9.5, 0), V(0, 0, 1), 0.875), False)
sketch16.addGeometry(Part.Circle(V(-0.5, 9.5, 0), V(0, 0, 1), 0.875), False)
sketch16.addConstraint(Sketcher.Constraint("Equal", 0, 1))
sketch16.addConstraint(Sketcher.Constraint("Horizontal", 0, 3, 1, 3))
sketch16.addConstraint(Sketcher.Constraint("Diameter", 0, Q("1.75 mm")))
sketch16.addConstraint(Sketcher.Constraint("DistanceX", 1, 3, 0, 3, Q("17 mm")))
sketch16.addConstraint(Sketcher.Constraint("DistanceX", -1, 1, 0, 3, Q("16.5 mm")))
sketch16.addConstraint(Sketcher.Constraint("DistanceY", -1, 1, 0, 3, Q("9.5 mm")))
pocket4 = body.newObject("PartDesign::Pocket", "Pocket003")
pocket4.Profile = sketch16
pocket4.Length = 7

sketch17 = body.newObject("Sketcher::SketchObject", "Sketch016")
sketch17.AttachmentSupport = (doc.getObject("YZ_Plane"), [""])
sketch17.MapMode = "FlatFace"
sketch17.AttachmentOffset = App.Placement(V(0, 0, -27.5), App.Rotation())
add_polygon(sketch17, [(29.05, 7.95), (29.05, 20), (33.05, 20), (33.05, 5), (12, 5), (12, 20), (16.95, 20), (16.95, 7.95)])
sketch17.addConstraint(Sketcher.Constraint("Vertical", 0))
sketch17.addConstraint(Sketcher.Constraint("Horizontal", 1))
sketch17.addConstraint(Sketcher.Constraint("Vertical", 2))
sketch17.addConstraint(Sketcher.Constraint("Horizontal", 3))
sketch17.addConstraint(Sketcher.Constraint("Vertical", 4))
sketch17.addConstraint(Sketcher.Constraint("Horizontal", 5))
sketch17.addConstraint(Sketcher.Constraint("Vertical", 6))
sketch17.addConstraint(Sketcher.Constraint("Horizontal", 7))
sketch17.addConstraint(Sketcher.Constraint("Horizontal", 1, 2, 4, 2))
sketch17.addConstraint(Sketcher.Constraint("DistanceX", 1, 1, 1, 2, Q("4 mm")))
sketch17.addConstraint(Sketcher.Constraint("DistanceY", 2, 2, 2, 1, Q("15 mm")))
sketch17.addConstraint(Sketcher.Constraint("DistanceX", 7, 1, 7, 2, Q("12.1 mm")))
sketch17.addConstraint(Sketcher.Constraint("DistanceY", -1, 1, 0, 2, Q("20 mm")))
sketch17.addConstraint(Sketcher.Constraint("DistanceX", -1, 1, 3, 2, Q("12 mm")))
sketch17.addConstraint(Sketcher.Constraint("DistanceX", 3, 2, 3, 1, Q("21.05 mm")))
sketch17.addConstraint(Sketcher.Constraint("DistanceY", 0, 1, 0, 2, Q("12.05 mm")))
pad10 = body.newObject("PartDesign::Pad", "Pad009")
pad10.Profile = sketch17
pad10.Length = 9
pad10.Reversed = True

sketch18 = body.newObject("Sketcher::SketchObject", "Sketch017")
sketch18.AttachmentSupport = (doc.getObject("XY_Plane"), [""])
sketch18.MapMode = "FlatFace"
sketch18.AttachmentOffset = App.Placement(V(0, 0, 20), App.Rotation())
add_polygon(sketch18, [(-42.5, 33.05), (-42.5, 4), (-27.5, 4), (-27.5, 33.05)])
sketch18.addConstraint(Sketcher.Constraint("Vertical", 0))
sketch18.addConstraint(Sketcher.Constraint("Horizontal", 1))
sketch18.addConstraint(Sketcher.Constraint("Vertical", 2))
sketch18.addConstraint(Sketcher.Constraint("Horizontal", 3))
sketch18.addConstraint(Sketcher.Constraint("DistanceX", 1, 1, 1, 2, Q("15 mm")))
sketch18.addConstraint(Sketcher.Constraint("DistanceY", -1, 1, 0, 2, Q("4 mm")))
sketch18.addConstraint(Sketcher.Constraint("DistanceY", 0, 2, 0, 1, Q("29.05 mm")))
sketch18.addConstraint(Sketcher.Constraint("DistanceX", 0, 2, -1, 1, Q("42.5 mm")))
pocket5 = body.newObject("PartDesign::Pocket", "Pocket004")
pocket5.Profile = sketch18
pocket5.Length = 2.1

sketch19 = body.newObject("Sketcher::SketchObject", "Sketch018")
sketch19.AttachmentSupport = (doc.getObject("XY_Plane"), [""])
sketch19.MapMode = "FlatFace"
sketch19.AttachmentOffset = App.Placement(V(0, 0, 17.9), App.Rotation())
sketch19.addGeometry(Part.Circle(V(-32, 31.5, 0), V(0, 0, 1), 0.875), False)
sketch19.addGeometry(Part.Circle(V(-32, 14.5, 0), V(0, 0, 1), 0.875), False)
sketch19.addConstraint(Sketcher.Constraint("Equal", 0, 1))
sketch19.addConstraint(Sketcher.Constraint("Vertical", 0, 3, 1, 3))
sketch19.addConstraint(Sketcher.Constraint("Diameter", 0, Q("1.75 mm")))
sketch19.addConstraint(Sketcher.Constraint("DistanceX", 0, 3, -1, 1, Q("32 mm")))
sketch19.addConstraint(Sketcher.Constraint("DistanceY", 1, 3, 0, 3, Q("17 mm")))
sketch19.addConstraint(Sketcher.Constraint("DistanceY", -1, 1, 0, 3, Q("31.5 mm")))
pocket6 = body.newObject("PartDesign::Pocket", "Pocket005")
pocket6.Profile = sketch19
pocket6.Length = 7

sketch20 = body.newObject("Sketcher::SketchObject", "Sketch019")
sketch20.AttachmentSupport = (doc.getObject("XZ_Plane"), [""])
sketch20.MapMode = "FlatFace"
sketch20.AttachmentOffset = App.Placement(V(0, 0, 3), App.Rotation())
add_polygon(sketch20, [(-22.5, 10), (-22.5, 0), (22.5, 0), (22.5, 10)])
sketch20.addConstraint(Sketcher.Constraint("Vertical", 0))
sketch20.addConstraint(Sketcher.Constraint("Horizontal", 1))
sketch20.addConstraint(Sketcher.Constraint("Vertical", 2))
sketch20.addConstraint(Sketcher.Constraint("Horizontal", 3))
sketch20.addConstraint(Sketcher.Constraint("Symmetric", 0, 2, 1, 2, -1, 1))
sketch20.addConstraint(Sketcher.Constraint("DistanceX", 1, 1, 1, 2, Q("45 mm")))
sketch20.addConstraint(Sketcher.Constraint("DistanceY", 0, 2, 0, 1, Q("10 mm")))
pocket7 = body.newObject("PartDesign::Pocket", "Pocket006")
pocket7.Profile = sketch20
pocket7.Type = "ThroughAll"

sketch21 = body.newObject("Sketcher::SketchObject", "Sketch020")
sketch21.AttachmentSupport = (doc.getObject("XZ_Plane"), [""])
sketch21.MapMode = "FlatFace"
sketch21.addGeometry(Part.Circle(V(-17.5, 15, 0), V(0, 0, 1), 1.375), False)
sketch21.addGeometry(Part.Circle(V(-7.5, 15, 0), V(0, 0, 1), 1.375), False)
sketch21.addGeometry(Part.Circle(V(7.5, 15, 0), V(0, 0, 1), 1.375), False)
sketch21.addGeometry(Part.Circle(V(17.5, 15, 0), V(0, 0, 1), 1.375), False)
sketch21.addConstraint(Sketcher.Constraint("Equal", 0, 1))
sketch21.addConstraint(Sketcher.Constraint("Equal", 1, 2))
sketch21.addConstraint(Sketcher.Constraint("Equal", 2, 3))
sketch21.addConstraint(Sketcher.Constraint("Symmetric", 1, 3, 2, 3, -2))
sketch21.addConstraint(Sketcher.Constraint("Symmetric", 0, 3, 3, 3, -2))
sketch21.addConstraint(Sketcher.Constraint("Horizontal", 0, 3, 1, 3))
sketch21.addConstraint(Sketcher.Constraint("Diameter", 0, Q("2.75 mm")))
sketch21.addConstraint(Sketcher.Constraint("DistanceY", -1, 1, 0, 3, Q("15 mm")))
sketch21.addConstraint(Sketcher.Constraint("DistanceX", 0, 3, 1, 3, Q("10 mm")))
sketch21.addConstraint(Sketcher.Constraint("DistanceX", 1, 3, 2, 3, Q("15 mm")))
pocket8 = body.newObject("PartDesign::Pocket", "Pocket007")
pocket8.Profile = sketch21
pocket8.Type = "ThroughAll"
pocket8.Reversed = True

sketch22 = body.newObject("Sketcher::SketchObject", "Sketch021")
sketch22.AttachmentSupport = (doc.getObject("YZ_Plane"), [""])
sketch22.MapMode = "FlatFace"
sketch22.AttachmentOffset = App.Placement(V(0, 0, -22.5), App.Rotation())
sketch22.addGeometry(Part.Circle(V(23, 13, 0), V(0, 0, 1), 3), False)
sketch22.addConstraint(Sketcher.Constraint("Diameter", 0, Q("6 mm")))
sketch22.addConstraint(Sketcher.Constraint("DistanceX", -1, 1, 0, 3, Q("23 mm")))
sketch22.addConstraint(Sketcher.Constraint("DistanceY", -1, 1, 0, 3, Q("13 mm")))
pocket9 = body.newObject("PartDesign::Pocket", "Pocket008")
pocket9.Profile = sketch22
pocket9.Length = 2

sketch23 = body.newObject("Sketcher::SketchObject", "Sketch022")
sketch23.AttachmentSupport = (doc.getObject("XY_Plane"), [""])
sketch23.MapMode = "FlatFace"
sketch23.addGeometry(Part.Circle(V(35.5, 8, 0), V(0, 0, 1), 3), False)
sketch23.addConstraint(Sketcher.Constraint("Diameter", 0, Q("6 mm")))
sketch23.addConstraint(Sketcher.Constraint("DistanceY", -1, 1, 0, 3, Q("8 mm")))
sketch23.addConstraint(Sketcher.Constraint("DistanceX", -1, 1, 0, 3, Q("35.5 mm")))
pocket10 = body.newObject("PartDesign::Pocket", "Pocket009")
pocket10.Profile = sketch23
pocket10.Length = 2
pocket10.Reversed = True

sketch24 = body.newObject("Sketcher::SketchObject", "Sketch023")
sketch24.AttachmentSupport = (doc.getObject("XZ_Plane"), [""])
sketch24.MapMode = "FlatFace"
sketch24.AttachmentOffset = App.Placement(V(0, 0, 3), App.Rotation())
add_polygon(sketch24, [(7.5, 45), (-7.5, 45), (-27.5, 20), (27.5, 20)])
sketch24.addConstraint(Sketcher.Constraint("Horizontal", 0))
sketch24.addConstraint(Sketcher.Constraint("Horizontal", 2))
sketch24.addConstraint(Sketcher.Constraint("Equal", 1, 3))
sketch24.addConstraint(Sketcher.Constraint("DistanceX", 0, 2, 0, 1, Q("15 mm")))
sketch24.addConstraint(Sketcher.Constraint("DistanceX", 2, 1, 2, 2, Q("55 mm")))
sketch24.addConstraint(Sketcher.Constraint("DistanceY", -1, 1, 0, 2, Q("45 mm")))
sketch24.addConstraint(Sketcher.Constraint("DistanceY", -1, 1, 1, 2, Q("20 mm")))
sketch24.addConstraint(Sketcher.Constraint("DistanceX", 0, 2, -1, 1, Q("7.5 mm")))
pad11 = body.newObject("PartDesign::Pad", "Pad010")
pad11.Profile = sketch24
pad11.Length = 3
pad11.Reversed = True

sketch25 = body.newObject("Sketcher::SketchObject", "Sketch024")
sketch25.AttachmentSupport = (doc.getObject("XZ_Plane"), [""])
sketch25.MapMode = "FlatFace"
add_polygon(sketch25, [(-22.5, 20), (-27.5, 20), (-7.5, 45), (7.5, 45), (27.5, 20), (22.5, 20), (4.9, 42), (-4.9, 42)])
sketch25.addConstraint(Sketcher.Constraint("Horizontal", 0))
sketch25.addConstraint(Sketcher.Constraint("Horizontal", 2))
sketch25.addConstraint(Sketcher.Constraint("Horizontal", 4))
sketch25.addConstraint(Sketcher.Constraint("Horizontal", 6))
sketch25.addConstraint(Sketcher.Constraint("Symmetric", 0, 2, 3, 2, -2))
sketch25.addConstraint(Sketcher.Constraint("Parallel", 3, 5))
sketch25.addConstraint(Sketcher.Constraint("Parallel", 1, 7))
sketch25.addConstraint(Sketcher.Constraint("Equal", 0, 4))
sketch25.addConstraint(Sketcher.Constraint("Equal", 1, 3))
sketch25.addConstraint(Sketcher.Constraint("DistanceX", 0, 2, 0, 1, Q("5 mm")))
sketch25.addConstraint(Sketcher.Constraint("DistanceX", 2, 1, 2, 2, Q("15 mm")))
sketch25.addConstraint(Sketcher.Constraint("DistanceX", 6, 2, 6, 1, Q("9.8 mm")))
sketch25.addConstraint(Sketcher.Constraint("DistanceY", -1, 1, 0, 2, Q("20 mm")))
sketch25.addConstraint(Sketcher.Constraint("DistanceY", -1, 1, 1, 2, Q("45 mm")))
sketch25.addConstraint(Sketcher.Constraint("DistanceY", -1, 1, 5, 2, Q("42 mm")))
pad12 = body.newObject("PartDesign::Pad", "Pad011")
pad12.Profile = sketch25
pad12.Length = 15
pad12.Reversed = True

sketch26 = body.newObject("Sketcher::SketchObject", "Sketch025")
sketch26.AttachmentSupport = (doc.getObject("YZ_Plane"), [""])
sketch26.MapMode = "FlatFace"
add_polygon(sketch26, [(7, 45), (15, 20), (15, 45)])
sketch26.addConstraint(Sketcher.Constraint("Vertical", 1))
sketch26.addConstraint(Sketcher.Constraint("Horizontal", 2))
sketch26.addConstraint(Sketcher.Constraint("DistanceX", 2, 2, 2, 1, Q("8 mm")))
sketch26.addConstraint(Sketcher.Constraint("DistanceY", 1, 1, 1, 2, Q("25 mm")))
sketch26.addConstraint(Sketcher.Constraint("DistanceX", -1, 1, 0, 2, Q("15 mm")))
sketch26.addConstraint(Sketcher.Constraint("DistanceY", -1, 1, 0, 2, Q("20 mm")))
pocket11 = body.newObject("PartDesign::Pocket", "Pocket010")
pocket11.Profile = sketch26
pocket11.Type = "ThroughAll"
pocket11.Midplane = True

sketch27 = body.newObject("Sketcher::SketchObject", "Sketch026")
sketch27.AttachmentSupport = (doc.getObject("XZ_Plane"), [""])
sketch27.MapMode = "FlatFace"
add_polygon(sketch27, [(22.5, 20), (-22.5, 20), (-18.5, 25), (-4.9, 25), (-4.9, 42), (4.9, 42), (4.9, 25), (18.5, 25)])
sketch27.addConstraint(Sketcher.Constraint("Horizontal", 0))
sketch27.addConstraint(Sketcher.Constraint("Horizontal", 2))
sketch27.addConstraint(Sketcher.Constraint("Vertical", 3))
sketch27.addConstraint(Sketcher.Constraint("Horizontal", 4))
sketch27.addConstraint(Sketcher.Constraint("Vertical", 5))
sketch27.addConstraint(Sketcher.Constraint("Horizontal", 6))
sketch27.addConstraint(Sketcher.Constraint("Symmetric", 2, 2, 5, 2, -2))
sketch27.addConstraint(Sketcher.Constraint("Equal", 2, 6))
sketch27.addConstraint(Sketcher.Constraint("Equal", 1, 7))
sketch27.addConstraint(Sketcher.Constraint("DistanceX", 0, 2, 0, 1, Q("45 mm")))
sketch27.addConstraint(Sketcher.Constraint("DistanceY", 3, 1, 3, 2, Q("17 mm")))
sketch27.addConstraint(Sketcher.Constraint("DistanceX", 2, 1, 2, 2, Q("13.6 mm")))
sketch27.addConstraint(Sketcher.Constraint("DistanceX", 4, 1, 4, 2, Q("9.8 mm")))
sketch27.addConstraint(Sketcher.Constraint("DistanceY", -1, 1, 0, 2, Q("20 mm")))
sketch27.addConstraint(Sketcher.Constraint("DistanceY", -1, 1, 1, 2, Q("25 mm")))
pad13 = body.newObject("PartDesign::Pad", "Pad012")
pad13.Profile = sketch27
pad13.Length = 2
pad13.Reversed = True

sketch28 = body.newObject("Sketcher::SketchObject", "Sketch027")
sketch28.AttachmentSupport = (doc.getObject("XZ_Plane"), [""])
sketch28.MapMode = "FlatFace"
sketch28.AttachmentOffset = App.Placement(V(0, 0, 3), App.Rotation())
sketch28.addGeometry(Part.Circle(V(0, 40, 0), V(0, 0, 1), 1.5), False)
sketch28.addConstraint(Sketcher.Constraint("PointOnObject", 0, 3, -2))
sketch28.addConstraint(Sketcher.Constraint("Diameter", 0, Q("3 mm")))
sketch28.addConstraint(Sketcher.Constraint("DistanceY", -1, 1, 0, 3, Q("40 mm")))
pocket12 = body.newObject("PartDesign::Pocket", "Pocket011")
pocket12.Profile = sketch28
pocket12.Type = "UpToFirst"

sketch29 = body.newObject("Sketcher::SketchObject", "Sketch028")
sketch29.AttachmentSupport = (doc.getObject("XZ_Plane"), [""])
sketch29.MapMode = "FlatFace"
sketch29.AttachmentOffset = App.Placement(V(0, 0, 3), App.Rotation())
sketch29.addGeometry(Part.Circle(V(0, 25, 0), V(0, 0, 1), 1.5), False)
sketch29.addConstraint(Sketcher.Constraint("PointOnObject", 0, 3, -2))
sketch29.addConstraint(Sketcher.Constraint("Diameter", 0, Q("3 mm")))
sketch29.addConstraint(Sketcher.Constraint("DistanceY", -1, 1, 0, 3, Q("25 mm")))
pocket13 = body.newObject("PartDesign::Pocket", "Pocket012")
pocket13.Profile = sketch29
pocket13.Type = "UpToFirst"

sketch30 = body.newObject("Sketcher::SketchObject", "Sketch029")
sketch30.AttachmentSupport = (doc.getObject("XZ_Plane"), [""])
sketch30.MapMode = "FlatFace"
sketch30.AttachmentOffset = App.Placement(V(0, 0, -2), App.Rotation())
add_polygon(sketch30, [(3.175426, 40), (1.587713, 37.25), (-1.587713, 37.25), (-3.175426, 40), (-1.587713, 42.75), (1.587713, 42.75)])
sketch30.addConstraint(Sketcher.Constraint("Horizontal", 1))
sketch30.addConstraint(Sketcher.Constraint("Horizontal", 4))
sketch30.addConstraint(Sketcher.Constraint("Symmetric", 2, 2, 5, 2, -2))
sketch30.addConstraint(Sketcher.Constraint("Parallel", 0, 3))
sketch30.addConstraint(Sketcher.Constraint("Parallel", 2, 5))
sketch30.addConstraint(Sketcher.Constraint("Vertical", 1, 2, 3, 2))
sketch30.addConstraint(Sketcher.Constraint("Vertical", 0, 2, 4, 2))
sketch30.addConstraint(Sketcher.Constraint("Angle", 0, Q("-120 deg")))
sketch30.addConstraint(Sketcher.Constraint("DistanceY", -1, 1, 2, 2, Q("40 mm")))
sketch30.addConstraint(Sketcher.Constraint("DistanceY", 1, 2, 3, 2, Q("5.5 mm")))
sketch30.addConstraint(Sketcher.Constraint("DistanceX", 1, 2, 1, 1, Q("3.175426 mm")))
pocket14 = body.newObject("PartDesign::Pocket", "Pocket013")
pocket14.Profile = sketch30
pocket14.Type = "ThroughAll"

doc.recompute()
